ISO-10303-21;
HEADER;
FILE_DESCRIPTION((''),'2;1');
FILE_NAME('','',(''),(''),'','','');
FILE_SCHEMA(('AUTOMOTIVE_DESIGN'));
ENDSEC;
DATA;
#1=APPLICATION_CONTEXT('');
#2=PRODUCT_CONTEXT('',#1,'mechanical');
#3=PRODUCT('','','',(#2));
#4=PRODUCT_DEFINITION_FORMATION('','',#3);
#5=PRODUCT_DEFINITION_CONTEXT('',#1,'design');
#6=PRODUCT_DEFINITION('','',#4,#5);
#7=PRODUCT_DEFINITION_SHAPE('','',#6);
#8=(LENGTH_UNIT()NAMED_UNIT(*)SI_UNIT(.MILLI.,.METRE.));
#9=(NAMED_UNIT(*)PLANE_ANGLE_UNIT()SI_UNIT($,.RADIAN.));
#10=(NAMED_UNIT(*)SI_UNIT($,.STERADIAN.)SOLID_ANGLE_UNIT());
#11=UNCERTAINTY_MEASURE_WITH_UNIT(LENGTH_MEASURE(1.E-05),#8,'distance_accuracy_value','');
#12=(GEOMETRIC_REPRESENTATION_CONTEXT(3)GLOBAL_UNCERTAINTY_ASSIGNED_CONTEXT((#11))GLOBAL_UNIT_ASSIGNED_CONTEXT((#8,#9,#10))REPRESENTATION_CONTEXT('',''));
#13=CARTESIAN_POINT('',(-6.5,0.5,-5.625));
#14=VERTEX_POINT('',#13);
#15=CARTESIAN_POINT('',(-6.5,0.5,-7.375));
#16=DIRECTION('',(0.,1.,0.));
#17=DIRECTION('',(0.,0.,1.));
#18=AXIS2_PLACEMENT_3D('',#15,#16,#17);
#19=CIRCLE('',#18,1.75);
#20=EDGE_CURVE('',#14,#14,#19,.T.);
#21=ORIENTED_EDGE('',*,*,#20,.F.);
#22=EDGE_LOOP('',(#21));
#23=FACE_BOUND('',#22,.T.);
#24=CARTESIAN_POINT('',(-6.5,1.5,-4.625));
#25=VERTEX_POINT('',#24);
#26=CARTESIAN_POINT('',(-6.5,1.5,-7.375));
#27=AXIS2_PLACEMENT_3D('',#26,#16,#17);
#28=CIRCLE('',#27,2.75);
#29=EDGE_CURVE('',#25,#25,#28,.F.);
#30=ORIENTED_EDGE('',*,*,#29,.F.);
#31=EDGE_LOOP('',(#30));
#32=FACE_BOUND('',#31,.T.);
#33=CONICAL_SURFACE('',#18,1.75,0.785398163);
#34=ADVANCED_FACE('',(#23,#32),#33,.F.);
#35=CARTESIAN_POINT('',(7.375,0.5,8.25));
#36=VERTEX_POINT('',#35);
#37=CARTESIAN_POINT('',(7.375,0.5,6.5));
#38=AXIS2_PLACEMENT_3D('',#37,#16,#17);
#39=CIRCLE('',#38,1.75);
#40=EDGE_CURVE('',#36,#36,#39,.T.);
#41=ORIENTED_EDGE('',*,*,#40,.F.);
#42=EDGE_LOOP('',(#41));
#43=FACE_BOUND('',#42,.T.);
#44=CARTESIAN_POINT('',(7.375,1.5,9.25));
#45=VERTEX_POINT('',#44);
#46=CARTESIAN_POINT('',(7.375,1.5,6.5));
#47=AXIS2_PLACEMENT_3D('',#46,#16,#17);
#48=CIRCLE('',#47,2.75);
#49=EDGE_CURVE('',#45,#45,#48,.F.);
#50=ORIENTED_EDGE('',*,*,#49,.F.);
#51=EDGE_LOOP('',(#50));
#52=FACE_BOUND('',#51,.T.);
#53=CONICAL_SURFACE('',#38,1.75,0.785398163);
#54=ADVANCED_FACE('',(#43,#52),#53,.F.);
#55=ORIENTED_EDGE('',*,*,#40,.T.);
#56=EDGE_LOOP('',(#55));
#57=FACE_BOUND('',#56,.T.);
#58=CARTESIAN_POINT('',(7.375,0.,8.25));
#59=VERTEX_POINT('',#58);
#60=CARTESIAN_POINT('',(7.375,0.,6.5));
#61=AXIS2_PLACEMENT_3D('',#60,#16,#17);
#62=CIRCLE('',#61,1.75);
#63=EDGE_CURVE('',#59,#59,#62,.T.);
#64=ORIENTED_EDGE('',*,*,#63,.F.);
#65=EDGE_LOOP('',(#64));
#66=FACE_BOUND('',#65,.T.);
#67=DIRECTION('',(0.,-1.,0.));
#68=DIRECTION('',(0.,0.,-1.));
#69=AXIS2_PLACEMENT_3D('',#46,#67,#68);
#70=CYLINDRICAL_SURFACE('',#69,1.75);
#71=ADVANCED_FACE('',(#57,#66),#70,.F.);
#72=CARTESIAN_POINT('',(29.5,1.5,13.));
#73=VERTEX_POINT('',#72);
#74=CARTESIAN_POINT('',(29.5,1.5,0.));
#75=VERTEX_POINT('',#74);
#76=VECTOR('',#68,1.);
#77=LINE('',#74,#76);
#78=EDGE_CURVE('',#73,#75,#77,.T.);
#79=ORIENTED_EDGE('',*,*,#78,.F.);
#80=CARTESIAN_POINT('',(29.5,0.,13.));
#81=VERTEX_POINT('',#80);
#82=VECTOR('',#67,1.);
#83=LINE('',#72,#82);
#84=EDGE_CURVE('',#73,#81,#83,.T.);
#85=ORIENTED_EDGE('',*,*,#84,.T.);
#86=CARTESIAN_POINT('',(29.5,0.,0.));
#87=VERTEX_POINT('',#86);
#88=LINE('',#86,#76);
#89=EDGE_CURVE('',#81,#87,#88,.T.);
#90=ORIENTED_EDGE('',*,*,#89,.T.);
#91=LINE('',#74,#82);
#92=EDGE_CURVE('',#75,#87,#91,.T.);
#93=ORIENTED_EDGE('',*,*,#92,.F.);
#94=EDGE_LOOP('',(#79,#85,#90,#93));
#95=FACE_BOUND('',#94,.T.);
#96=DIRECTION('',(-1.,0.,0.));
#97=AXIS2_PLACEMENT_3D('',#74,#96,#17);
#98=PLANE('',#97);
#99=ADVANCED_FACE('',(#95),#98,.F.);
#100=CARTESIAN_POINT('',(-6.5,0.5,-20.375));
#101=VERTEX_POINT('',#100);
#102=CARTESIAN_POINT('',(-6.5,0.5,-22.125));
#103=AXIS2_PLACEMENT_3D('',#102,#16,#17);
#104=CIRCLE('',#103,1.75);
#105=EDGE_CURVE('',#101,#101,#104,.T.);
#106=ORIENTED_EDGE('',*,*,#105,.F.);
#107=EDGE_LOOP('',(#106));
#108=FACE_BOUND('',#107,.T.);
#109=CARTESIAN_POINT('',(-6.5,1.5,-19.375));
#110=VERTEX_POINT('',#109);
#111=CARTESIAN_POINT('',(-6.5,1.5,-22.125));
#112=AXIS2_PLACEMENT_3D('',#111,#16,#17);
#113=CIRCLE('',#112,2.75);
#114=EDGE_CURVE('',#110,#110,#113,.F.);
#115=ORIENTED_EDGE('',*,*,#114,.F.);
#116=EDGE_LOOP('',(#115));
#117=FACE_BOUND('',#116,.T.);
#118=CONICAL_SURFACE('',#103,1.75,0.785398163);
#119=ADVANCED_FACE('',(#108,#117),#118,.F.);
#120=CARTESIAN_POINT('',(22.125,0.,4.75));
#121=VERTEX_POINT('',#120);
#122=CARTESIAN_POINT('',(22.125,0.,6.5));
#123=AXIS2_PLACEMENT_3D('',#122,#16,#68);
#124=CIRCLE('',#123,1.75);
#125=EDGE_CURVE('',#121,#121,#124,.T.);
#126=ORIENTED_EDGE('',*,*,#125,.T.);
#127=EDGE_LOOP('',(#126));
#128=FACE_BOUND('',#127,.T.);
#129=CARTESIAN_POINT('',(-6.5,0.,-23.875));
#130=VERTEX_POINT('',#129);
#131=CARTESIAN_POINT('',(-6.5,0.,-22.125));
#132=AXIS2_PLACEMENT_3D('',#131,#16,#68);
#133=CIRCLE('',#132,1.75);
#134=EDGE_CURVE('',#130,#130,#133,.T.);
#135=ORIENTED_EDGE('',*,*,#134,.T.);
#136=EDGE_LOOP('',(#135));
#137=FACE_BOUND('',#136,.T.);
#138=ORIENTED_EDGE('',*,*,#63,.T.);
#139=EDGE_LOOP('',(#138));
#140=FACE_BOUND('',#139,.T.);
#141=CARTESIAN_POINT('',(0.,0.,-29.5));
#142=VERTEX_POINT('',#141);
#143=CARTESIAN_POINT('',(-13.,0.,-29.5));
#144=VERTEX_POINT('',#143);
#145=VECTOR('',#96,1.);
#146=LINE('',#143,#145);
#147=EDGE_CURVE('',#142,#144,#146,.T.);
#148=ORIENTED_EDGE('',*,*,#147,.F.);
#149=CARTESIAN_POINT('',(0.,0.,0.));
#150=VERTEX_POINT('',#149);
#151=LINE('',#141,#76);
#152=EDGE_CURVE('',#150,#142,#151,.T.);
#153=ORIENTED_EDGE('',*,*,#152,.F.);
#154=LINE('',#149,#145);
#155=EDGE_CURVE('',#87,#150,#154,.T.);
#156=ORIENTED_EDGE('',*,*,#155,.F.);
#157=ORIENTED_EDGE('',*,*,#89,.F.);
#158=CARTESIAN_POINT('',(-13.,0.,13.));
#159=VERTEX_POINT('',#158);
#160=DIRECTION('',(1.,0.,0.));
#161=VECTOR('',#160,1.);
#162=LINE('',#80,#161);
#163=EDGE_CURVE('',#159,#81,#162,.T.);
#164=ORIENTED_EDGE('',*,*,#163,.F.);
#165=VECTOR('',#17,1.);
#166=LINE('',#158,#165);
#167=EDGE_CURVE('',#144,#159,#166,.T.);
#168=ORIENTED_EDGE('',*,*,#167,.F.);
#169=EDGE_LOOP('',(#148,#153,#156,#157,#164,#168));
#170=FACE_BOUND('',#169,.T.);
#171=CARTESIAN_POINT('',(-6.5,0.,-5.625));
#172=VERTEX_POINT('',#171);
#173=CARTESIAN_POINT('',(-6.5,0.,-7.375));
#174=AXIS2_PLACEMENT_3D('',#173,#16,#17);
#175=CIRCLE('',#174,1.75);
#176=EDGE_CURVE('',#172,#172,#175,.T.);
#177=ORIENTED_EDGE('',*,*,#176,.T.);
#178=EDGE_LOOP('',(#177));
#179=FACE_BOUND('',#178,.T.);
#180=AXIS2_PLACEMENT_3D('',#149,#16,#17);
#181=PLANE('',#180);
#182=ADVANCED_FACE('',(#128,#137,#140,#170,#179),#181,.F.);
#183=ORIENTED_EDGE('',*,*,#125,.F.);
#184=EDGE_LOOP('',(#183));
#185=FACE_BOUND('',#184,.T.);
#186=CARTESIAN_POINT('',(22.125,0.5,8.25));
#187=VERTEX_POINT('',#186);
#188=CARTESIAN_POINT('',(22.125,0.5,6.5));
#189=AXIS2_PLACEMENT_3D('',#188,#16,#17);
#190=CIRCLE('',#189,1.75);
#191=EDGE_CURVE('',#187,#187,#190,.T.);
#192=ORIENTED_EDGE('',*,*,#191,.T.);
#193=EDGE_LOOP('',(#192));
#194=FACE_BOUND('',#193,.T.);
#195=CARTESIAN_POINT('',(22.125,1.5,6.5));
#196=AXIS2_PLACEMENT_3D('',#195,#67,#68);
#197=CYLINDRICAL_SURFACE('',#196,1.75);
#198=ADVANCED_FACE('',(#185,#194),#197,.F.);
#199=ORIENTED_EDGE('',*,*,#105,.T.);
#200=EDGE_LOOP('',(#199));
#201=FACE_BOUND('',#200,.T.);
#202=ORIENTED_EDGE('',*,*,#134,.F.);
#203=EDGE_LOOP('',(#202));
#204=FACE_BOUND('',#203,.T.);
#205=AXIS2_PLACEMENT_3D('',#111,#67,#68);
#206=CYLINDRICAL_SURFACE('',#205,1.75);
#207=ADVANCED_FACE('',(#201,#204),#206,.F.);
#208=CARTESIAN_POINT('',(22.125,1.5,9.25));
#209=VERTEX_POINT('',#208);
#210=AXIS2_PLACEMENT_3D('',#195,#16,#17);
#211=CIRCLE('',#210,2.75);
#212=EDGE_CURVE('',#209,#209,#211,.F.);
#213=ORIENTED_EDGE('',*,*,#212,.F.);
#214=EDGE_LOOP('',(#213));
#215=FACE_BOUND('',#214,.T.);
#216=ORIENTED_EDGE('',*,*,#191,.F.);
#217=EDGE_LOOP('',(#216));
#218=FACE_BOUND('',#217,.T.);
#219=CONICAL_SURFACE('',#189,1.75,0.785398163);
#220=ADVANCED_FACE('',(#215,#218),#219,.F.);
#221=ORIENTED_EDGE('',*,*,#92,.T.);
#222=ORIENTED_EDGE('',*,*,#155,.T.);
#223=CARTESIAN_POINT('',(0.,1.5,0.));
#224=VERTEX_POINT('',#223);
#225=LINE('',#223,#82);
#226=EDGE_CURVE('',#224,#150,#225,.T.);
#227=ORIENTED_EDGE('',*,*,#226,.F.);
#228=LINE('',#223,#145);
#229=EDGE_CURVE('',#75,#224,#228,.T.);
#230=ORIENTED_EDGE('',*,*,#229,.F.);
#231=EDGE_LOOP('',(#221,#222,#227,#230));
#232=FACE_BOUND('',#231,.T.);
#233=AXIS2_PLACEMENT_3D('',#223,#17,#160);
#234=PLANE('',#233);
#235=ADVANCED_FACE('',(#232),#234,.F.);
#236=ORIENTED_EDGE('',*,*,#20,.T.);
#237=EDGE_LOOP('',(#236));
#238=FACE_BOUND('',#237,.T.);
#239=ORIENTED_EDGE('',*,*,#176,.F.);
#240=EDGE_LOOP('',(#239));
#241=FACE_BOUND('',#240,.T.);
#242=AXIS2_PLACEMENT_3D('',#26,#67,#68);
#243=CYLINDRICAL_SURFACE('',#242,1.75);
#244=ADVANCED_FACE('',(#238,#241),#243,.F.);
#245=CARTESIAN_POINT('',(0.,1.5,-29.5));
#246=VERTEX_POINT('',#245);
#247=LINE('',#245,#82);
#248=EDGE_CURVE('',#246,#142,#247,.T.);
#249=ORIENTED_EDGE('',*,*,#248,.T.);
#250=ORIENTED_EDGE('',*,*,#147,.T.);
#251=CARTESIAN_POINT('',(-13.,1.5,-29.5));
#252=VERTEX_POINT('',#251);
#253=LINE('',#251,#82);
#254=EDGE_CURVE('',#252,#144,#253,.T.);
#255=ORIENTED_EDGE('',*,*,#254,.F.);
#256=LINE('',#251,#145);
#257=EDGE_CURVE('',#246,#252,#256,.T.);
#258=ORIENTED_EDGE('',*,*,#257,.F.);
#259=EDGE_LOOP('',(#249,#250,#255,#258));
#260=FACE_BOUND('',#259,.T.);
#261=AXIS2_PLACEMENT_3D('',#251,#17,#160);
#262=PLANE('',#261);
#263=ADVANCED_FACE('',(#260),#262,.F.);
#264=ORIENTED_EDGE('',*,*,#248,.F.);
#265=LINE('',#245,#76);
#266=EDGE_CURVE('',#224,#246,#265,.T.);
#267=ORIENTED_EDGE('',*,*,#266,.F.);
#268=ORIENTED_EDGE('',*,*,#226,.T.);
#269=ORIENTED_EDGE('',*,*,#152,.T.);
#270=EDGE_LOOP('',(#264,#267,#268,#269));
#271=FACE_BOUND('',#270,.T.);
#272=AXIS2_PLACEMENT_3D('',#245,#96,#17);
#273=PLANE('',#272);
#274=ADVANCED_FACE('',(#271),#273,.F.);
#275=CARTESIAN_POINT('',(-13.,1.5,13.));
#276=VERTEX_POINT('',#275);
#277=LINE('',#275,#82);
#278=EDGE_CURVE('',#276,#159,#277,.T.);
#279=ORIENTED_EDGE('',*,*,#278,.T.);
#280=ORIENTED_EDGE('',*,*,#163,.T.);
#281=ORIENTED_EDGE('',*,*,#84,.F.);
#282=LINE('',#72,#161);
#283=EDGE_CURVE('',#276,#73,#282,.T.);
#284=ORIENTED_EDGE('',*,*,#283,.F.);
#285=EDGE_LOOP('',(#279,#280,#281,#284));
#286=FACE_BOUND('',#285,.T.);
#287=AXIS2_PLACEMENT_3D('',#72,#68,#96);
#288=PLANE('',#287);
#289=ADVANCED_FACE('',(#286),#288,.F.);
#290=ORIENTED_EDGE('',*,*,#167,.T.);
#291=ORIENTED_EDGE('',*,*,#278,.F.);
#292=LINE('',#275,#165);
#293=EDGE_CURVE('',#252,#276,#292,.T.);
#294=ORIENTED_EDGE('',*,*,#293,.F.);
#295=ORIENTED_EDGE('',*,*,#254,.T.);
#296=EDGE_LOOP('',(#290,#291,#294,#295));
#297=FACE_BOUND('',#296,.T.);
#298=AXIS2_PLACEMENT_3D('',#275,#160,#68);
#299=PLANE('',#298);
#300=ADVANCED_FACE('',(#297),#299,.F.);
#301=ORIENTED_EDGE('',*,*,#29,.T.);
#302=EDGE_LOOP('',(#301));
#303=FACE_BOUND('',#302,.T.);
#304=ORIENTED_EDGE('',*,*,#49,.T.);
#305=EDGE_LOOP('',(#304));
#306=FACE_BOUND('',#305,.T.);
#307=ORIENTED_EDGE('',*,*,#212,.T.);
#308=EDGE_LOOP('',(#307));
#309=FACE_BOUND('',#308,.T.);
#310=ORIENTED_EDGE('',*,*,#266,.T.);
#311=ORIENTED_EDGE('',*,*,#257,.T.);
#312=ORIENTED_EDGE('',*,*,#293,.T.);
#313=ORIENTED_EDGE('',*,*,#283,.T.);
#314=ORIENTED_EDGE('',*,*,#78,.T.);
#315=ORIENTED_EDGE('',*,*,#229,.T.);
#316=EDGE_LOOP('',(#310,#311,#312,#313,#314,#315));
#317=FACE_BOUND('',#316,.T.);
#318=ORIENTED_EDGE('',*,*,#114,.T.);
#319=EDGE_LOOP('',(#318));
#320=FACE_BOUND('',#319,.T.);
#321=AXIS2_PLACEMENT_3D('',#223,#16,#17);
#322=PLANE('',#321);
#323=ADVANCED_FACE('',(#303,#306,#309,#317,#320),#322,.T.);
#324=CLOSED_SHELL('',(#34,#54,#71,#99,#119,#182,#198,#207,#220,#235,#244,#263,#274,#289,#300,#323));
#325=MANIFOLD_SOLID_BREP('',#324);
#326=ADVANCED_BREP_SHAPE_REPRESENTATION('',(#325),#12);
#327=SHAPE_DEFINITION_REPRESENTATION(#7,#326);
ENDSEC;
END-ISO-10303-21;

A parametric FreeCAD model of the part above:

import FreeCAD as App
import Part
import Sketcher

V = App.Vector
Q = App.Units.Quantity


def edges_at(feature, points):
    """Names of the edges that pass closest to the given points."""
    edges = feature.Shape.Edges
    near = lambda p: min(range(len(edges)), key=lambda i: edges[i].distToShape(Part.Vertex(*p))[0])
    return sorted({f"Edge{near(p) + 1}" for p in points})

doc = App.newDocument("Part")
body = doc.addObject("PartDesign::Body", "Body")

sketch1 = body.newObject("Sketcher::SketchObject", "Sketch")
sketch1.AttachmentSupport = (doc.getObject("XZ_Plane"), [""])
sketch1.MapMode = "FlatFace"
sketch1.addGeometry([
    Part.LineSegment(V(29.5, 0, 0), V(0, 0, 0)),
    Part.LineSegment(V(0, 0, 0), V(0, -29.5, 0)),
    Part.LineSegment(V(0, -29.5, 0), V(-13, -29.5, 0)),
    Part.LineSegment(V(-13, -29.5, 0), V(-13, 13, 0)),
    Part.LineSegment(V(-13, 13, 0), V(29.5, 13, 0)),
    Part.LineSegment(V(29.5, 13, 0), V(29.5, 0, 0)),
    Part.Circle(V(22.125, 6.5, 0), V(0, 0, 1), 1.75),
    Part.Circle(V(7.375, 6.5, 0), V(0, 0, 1), 1.75),
    Part.Circle(V(-6.5, -7.375, 0), V(0, 0, 1), 1.75),
    Part.Circle(V(-6.5, -22.125, 0), V(0, 0, 1), 1.75),
], False)
sketch1.addConstraint([
    Sketcher.Constraint("Coincident", 0, 2, 1, 1),
    Sketcher.Constraint("Coincident", 1, 2, 2, 1),
    Sketcher.Constraint("Coincident", 2, 2, 3, 1),
    Sketcher.Constraint("Coincident", 3, 2, 4, 1),
    Sketcher.Constraint("Coincident", 4, 2, 5, 1),
    Sketcher.Constraint("Coincident", 5, 2, 0, 1),
    Sketcher.Constraint("Horizontal", 0),
    Sketcher.Constraint("Vertical", 1),
    Sketcher.Constraint("Horizontal", 2),
    Sketcher.Constraint("Vertical", 3),
    Sketcher.Constraint("Horizontal", 4),
    Sketcher.Constraint("Vertical", 5),
    Sketcher.Constraint("Coincident", 0, 2, -1, 1),
    Sketcher.Constraint("Equal", 6, 7),
    Sketcher.Constraint("Equal", 7, 8),
    Sketcher.Constraint("Equal", 8, 9),
    Sketcher.Constraint("Horizontal", 6, 3, 7, 3),
    Sketcher.Constraint("Vertical", 8, 3, 9, 3),
    Sketcher.Constraint("Equal", 0, 1),
    Sketcher.Constraint("Equal", 4, 3),
    Sketcher.Constraint("Diameter", 6, Q("3.5 mm")),
    Sketcher.Constraint("DistanceX", 2, 2, 2, 1, Q("13 mm")),
    Sketcher.Constraint("DistanceX", 0, 2, 0, 1, Q("29.5 mm")),
    Sketcher.Constraint("DistanceY", 1, 2, 7, 3, Q("36 mm")),
    Sketcher.Constraint("DistanceX", 8, 3, 4, 2, Q("36 mm")),
    Sketcher.Constraint("DistanceX", 7, 3, 6, 3, Q("14.75 mm")),
    Sketcher.Constraint("DistanceY", 9, 3, 8, 3, Q("14.75 mm")),
    Sketcher.Constraint("DistanceX", -1, 1, 6, 3, Q("22.125 mm")),
    Sketcher.Constraint("DistanceY", 8, 3, -1, 1, Q("7.375 mm")),
])
pad1 = body.newObject("PartDesign::Pad", "Pad")
pad1.Profile = sketch1
pad1.Length = 1.5
pad1.Reversed = True
doc.recompute()

chamfer = body.newObject("PartDesign::Chamfer", "Chamfer")
chamfer.Base = (pad1, edges_at(pad1, [
    (-6.5, 1.5, -9.125),
    (7.375, 1.5, 4.75),
    (-6.5, 1.5, -20.375),
    (22.125, 1.5, 8.25),
]))
chamfer.Size = 1

doc.recompute()
